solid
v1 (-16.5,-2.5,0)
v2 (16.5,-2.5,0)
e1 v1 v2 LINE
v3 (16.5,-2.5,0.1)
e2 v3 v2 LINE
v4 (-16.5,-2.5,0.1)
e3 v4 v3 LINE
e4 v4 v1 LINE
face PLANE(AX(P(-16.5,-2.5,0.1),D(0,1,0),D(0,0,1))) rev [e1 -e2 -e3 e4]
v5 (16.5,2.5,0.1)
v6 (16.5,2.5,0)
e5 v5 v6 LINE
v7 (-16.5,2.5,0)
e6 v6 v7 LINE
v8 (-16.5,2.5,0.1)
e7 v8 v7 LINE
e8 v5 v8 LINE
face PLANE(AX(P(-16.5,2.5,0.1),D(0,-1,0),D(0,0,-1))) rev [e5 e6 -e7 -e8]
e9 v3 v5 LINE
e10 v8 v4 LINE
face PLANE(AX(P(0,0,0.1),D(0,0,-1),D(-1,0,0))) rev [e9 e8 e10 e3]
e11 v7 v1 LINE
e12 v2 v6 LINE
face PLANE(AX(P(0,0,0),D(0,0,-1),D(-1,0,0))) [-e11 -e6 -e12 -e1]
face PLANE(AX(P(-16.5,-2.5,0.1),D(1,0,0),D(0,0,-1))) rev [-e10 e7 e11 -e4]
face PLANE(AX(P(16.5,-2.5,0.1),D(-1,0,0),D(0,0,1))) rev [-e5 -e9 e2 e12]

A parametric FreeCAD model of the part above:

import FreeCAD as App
import Part
import Sketcher
from FreeCAD import Vector


def add_polygon(sketch, points):
    """Adds a closed chain of lines whose ends are joined by coincident constraints."""
    first, n = sketch.GeometryCount, len(points)
    for a, b in zip(points, points[1:] + points[:1]):
        sketch.addGeometry(Part.LineSegment(App.Vector(*a, 0), App.Vector(*b, 0)), False)
    for i in range(n):
        sketch.addConstraint(Sketcher.Constraint("Coincident", first + i, 2, first + (i + 1) % n, 1))

doc = App.newDocument("Part")
params = doc.addObject("Spreadsheet::Sheet", "Params")
for row, (alias, value) in enumerate([
    ("sketch1_width", "33 mm"),
    ("sketch1_height", "5 mm"),
    ("pad1_length", "0.1 mm"),
], start=1):
    params.set(f"A{row}", alias)
    params.set(f"B{row}", "=" + value)
    params.setAlias(f"B{row}", alias)

body = doc.addObject("PartDesign::Body", "Body")

# Sketch on XY plane
sketch1 = doc.addObject("Sketcher::SketchObject", "Sketch")
body.addObject(sketch1)
sketch1.AttachmentSupport = (doc.XY_Plane, [""])
sketch1.MapMode = "FlatFace"
add_polygon(sketch1, [(-16, 2), (-16, -2), (16, -2), (16, 2)])  # lines 0-3
sketch1.addConstraint([
    Sketcher.Constraint("Vertical", 0),
    Sketcher.Constraint("Horizontal", 1),
    Sketcher.Constraint("Vertical", 2),
    Sketcher.Constraint("Horizontal", 3),
    Sketcher.Constraint("Symmetric", 0, 2, 2, 2, -1, 1),
    Sketcher.Constraint("DistanceX", 1, 1, 1, 2, 33.0),
    Sketcher.Constraint("DistanceY", 0, 2, 0, 1, 5.0),
])
sketch1.setExpression("Constraints[9]", "Params.sketch1_width")
sketch1.setExpression("Constraints[10]", "Params.sketch1_height")
pad1 = doc.addObject("PartDesign::Pad", "Pad")
body.addObject(pad1)
pad1.Profile = sketch1
pad1.setExpression("Length", "Params.pad1_length")

doc.recompute()
